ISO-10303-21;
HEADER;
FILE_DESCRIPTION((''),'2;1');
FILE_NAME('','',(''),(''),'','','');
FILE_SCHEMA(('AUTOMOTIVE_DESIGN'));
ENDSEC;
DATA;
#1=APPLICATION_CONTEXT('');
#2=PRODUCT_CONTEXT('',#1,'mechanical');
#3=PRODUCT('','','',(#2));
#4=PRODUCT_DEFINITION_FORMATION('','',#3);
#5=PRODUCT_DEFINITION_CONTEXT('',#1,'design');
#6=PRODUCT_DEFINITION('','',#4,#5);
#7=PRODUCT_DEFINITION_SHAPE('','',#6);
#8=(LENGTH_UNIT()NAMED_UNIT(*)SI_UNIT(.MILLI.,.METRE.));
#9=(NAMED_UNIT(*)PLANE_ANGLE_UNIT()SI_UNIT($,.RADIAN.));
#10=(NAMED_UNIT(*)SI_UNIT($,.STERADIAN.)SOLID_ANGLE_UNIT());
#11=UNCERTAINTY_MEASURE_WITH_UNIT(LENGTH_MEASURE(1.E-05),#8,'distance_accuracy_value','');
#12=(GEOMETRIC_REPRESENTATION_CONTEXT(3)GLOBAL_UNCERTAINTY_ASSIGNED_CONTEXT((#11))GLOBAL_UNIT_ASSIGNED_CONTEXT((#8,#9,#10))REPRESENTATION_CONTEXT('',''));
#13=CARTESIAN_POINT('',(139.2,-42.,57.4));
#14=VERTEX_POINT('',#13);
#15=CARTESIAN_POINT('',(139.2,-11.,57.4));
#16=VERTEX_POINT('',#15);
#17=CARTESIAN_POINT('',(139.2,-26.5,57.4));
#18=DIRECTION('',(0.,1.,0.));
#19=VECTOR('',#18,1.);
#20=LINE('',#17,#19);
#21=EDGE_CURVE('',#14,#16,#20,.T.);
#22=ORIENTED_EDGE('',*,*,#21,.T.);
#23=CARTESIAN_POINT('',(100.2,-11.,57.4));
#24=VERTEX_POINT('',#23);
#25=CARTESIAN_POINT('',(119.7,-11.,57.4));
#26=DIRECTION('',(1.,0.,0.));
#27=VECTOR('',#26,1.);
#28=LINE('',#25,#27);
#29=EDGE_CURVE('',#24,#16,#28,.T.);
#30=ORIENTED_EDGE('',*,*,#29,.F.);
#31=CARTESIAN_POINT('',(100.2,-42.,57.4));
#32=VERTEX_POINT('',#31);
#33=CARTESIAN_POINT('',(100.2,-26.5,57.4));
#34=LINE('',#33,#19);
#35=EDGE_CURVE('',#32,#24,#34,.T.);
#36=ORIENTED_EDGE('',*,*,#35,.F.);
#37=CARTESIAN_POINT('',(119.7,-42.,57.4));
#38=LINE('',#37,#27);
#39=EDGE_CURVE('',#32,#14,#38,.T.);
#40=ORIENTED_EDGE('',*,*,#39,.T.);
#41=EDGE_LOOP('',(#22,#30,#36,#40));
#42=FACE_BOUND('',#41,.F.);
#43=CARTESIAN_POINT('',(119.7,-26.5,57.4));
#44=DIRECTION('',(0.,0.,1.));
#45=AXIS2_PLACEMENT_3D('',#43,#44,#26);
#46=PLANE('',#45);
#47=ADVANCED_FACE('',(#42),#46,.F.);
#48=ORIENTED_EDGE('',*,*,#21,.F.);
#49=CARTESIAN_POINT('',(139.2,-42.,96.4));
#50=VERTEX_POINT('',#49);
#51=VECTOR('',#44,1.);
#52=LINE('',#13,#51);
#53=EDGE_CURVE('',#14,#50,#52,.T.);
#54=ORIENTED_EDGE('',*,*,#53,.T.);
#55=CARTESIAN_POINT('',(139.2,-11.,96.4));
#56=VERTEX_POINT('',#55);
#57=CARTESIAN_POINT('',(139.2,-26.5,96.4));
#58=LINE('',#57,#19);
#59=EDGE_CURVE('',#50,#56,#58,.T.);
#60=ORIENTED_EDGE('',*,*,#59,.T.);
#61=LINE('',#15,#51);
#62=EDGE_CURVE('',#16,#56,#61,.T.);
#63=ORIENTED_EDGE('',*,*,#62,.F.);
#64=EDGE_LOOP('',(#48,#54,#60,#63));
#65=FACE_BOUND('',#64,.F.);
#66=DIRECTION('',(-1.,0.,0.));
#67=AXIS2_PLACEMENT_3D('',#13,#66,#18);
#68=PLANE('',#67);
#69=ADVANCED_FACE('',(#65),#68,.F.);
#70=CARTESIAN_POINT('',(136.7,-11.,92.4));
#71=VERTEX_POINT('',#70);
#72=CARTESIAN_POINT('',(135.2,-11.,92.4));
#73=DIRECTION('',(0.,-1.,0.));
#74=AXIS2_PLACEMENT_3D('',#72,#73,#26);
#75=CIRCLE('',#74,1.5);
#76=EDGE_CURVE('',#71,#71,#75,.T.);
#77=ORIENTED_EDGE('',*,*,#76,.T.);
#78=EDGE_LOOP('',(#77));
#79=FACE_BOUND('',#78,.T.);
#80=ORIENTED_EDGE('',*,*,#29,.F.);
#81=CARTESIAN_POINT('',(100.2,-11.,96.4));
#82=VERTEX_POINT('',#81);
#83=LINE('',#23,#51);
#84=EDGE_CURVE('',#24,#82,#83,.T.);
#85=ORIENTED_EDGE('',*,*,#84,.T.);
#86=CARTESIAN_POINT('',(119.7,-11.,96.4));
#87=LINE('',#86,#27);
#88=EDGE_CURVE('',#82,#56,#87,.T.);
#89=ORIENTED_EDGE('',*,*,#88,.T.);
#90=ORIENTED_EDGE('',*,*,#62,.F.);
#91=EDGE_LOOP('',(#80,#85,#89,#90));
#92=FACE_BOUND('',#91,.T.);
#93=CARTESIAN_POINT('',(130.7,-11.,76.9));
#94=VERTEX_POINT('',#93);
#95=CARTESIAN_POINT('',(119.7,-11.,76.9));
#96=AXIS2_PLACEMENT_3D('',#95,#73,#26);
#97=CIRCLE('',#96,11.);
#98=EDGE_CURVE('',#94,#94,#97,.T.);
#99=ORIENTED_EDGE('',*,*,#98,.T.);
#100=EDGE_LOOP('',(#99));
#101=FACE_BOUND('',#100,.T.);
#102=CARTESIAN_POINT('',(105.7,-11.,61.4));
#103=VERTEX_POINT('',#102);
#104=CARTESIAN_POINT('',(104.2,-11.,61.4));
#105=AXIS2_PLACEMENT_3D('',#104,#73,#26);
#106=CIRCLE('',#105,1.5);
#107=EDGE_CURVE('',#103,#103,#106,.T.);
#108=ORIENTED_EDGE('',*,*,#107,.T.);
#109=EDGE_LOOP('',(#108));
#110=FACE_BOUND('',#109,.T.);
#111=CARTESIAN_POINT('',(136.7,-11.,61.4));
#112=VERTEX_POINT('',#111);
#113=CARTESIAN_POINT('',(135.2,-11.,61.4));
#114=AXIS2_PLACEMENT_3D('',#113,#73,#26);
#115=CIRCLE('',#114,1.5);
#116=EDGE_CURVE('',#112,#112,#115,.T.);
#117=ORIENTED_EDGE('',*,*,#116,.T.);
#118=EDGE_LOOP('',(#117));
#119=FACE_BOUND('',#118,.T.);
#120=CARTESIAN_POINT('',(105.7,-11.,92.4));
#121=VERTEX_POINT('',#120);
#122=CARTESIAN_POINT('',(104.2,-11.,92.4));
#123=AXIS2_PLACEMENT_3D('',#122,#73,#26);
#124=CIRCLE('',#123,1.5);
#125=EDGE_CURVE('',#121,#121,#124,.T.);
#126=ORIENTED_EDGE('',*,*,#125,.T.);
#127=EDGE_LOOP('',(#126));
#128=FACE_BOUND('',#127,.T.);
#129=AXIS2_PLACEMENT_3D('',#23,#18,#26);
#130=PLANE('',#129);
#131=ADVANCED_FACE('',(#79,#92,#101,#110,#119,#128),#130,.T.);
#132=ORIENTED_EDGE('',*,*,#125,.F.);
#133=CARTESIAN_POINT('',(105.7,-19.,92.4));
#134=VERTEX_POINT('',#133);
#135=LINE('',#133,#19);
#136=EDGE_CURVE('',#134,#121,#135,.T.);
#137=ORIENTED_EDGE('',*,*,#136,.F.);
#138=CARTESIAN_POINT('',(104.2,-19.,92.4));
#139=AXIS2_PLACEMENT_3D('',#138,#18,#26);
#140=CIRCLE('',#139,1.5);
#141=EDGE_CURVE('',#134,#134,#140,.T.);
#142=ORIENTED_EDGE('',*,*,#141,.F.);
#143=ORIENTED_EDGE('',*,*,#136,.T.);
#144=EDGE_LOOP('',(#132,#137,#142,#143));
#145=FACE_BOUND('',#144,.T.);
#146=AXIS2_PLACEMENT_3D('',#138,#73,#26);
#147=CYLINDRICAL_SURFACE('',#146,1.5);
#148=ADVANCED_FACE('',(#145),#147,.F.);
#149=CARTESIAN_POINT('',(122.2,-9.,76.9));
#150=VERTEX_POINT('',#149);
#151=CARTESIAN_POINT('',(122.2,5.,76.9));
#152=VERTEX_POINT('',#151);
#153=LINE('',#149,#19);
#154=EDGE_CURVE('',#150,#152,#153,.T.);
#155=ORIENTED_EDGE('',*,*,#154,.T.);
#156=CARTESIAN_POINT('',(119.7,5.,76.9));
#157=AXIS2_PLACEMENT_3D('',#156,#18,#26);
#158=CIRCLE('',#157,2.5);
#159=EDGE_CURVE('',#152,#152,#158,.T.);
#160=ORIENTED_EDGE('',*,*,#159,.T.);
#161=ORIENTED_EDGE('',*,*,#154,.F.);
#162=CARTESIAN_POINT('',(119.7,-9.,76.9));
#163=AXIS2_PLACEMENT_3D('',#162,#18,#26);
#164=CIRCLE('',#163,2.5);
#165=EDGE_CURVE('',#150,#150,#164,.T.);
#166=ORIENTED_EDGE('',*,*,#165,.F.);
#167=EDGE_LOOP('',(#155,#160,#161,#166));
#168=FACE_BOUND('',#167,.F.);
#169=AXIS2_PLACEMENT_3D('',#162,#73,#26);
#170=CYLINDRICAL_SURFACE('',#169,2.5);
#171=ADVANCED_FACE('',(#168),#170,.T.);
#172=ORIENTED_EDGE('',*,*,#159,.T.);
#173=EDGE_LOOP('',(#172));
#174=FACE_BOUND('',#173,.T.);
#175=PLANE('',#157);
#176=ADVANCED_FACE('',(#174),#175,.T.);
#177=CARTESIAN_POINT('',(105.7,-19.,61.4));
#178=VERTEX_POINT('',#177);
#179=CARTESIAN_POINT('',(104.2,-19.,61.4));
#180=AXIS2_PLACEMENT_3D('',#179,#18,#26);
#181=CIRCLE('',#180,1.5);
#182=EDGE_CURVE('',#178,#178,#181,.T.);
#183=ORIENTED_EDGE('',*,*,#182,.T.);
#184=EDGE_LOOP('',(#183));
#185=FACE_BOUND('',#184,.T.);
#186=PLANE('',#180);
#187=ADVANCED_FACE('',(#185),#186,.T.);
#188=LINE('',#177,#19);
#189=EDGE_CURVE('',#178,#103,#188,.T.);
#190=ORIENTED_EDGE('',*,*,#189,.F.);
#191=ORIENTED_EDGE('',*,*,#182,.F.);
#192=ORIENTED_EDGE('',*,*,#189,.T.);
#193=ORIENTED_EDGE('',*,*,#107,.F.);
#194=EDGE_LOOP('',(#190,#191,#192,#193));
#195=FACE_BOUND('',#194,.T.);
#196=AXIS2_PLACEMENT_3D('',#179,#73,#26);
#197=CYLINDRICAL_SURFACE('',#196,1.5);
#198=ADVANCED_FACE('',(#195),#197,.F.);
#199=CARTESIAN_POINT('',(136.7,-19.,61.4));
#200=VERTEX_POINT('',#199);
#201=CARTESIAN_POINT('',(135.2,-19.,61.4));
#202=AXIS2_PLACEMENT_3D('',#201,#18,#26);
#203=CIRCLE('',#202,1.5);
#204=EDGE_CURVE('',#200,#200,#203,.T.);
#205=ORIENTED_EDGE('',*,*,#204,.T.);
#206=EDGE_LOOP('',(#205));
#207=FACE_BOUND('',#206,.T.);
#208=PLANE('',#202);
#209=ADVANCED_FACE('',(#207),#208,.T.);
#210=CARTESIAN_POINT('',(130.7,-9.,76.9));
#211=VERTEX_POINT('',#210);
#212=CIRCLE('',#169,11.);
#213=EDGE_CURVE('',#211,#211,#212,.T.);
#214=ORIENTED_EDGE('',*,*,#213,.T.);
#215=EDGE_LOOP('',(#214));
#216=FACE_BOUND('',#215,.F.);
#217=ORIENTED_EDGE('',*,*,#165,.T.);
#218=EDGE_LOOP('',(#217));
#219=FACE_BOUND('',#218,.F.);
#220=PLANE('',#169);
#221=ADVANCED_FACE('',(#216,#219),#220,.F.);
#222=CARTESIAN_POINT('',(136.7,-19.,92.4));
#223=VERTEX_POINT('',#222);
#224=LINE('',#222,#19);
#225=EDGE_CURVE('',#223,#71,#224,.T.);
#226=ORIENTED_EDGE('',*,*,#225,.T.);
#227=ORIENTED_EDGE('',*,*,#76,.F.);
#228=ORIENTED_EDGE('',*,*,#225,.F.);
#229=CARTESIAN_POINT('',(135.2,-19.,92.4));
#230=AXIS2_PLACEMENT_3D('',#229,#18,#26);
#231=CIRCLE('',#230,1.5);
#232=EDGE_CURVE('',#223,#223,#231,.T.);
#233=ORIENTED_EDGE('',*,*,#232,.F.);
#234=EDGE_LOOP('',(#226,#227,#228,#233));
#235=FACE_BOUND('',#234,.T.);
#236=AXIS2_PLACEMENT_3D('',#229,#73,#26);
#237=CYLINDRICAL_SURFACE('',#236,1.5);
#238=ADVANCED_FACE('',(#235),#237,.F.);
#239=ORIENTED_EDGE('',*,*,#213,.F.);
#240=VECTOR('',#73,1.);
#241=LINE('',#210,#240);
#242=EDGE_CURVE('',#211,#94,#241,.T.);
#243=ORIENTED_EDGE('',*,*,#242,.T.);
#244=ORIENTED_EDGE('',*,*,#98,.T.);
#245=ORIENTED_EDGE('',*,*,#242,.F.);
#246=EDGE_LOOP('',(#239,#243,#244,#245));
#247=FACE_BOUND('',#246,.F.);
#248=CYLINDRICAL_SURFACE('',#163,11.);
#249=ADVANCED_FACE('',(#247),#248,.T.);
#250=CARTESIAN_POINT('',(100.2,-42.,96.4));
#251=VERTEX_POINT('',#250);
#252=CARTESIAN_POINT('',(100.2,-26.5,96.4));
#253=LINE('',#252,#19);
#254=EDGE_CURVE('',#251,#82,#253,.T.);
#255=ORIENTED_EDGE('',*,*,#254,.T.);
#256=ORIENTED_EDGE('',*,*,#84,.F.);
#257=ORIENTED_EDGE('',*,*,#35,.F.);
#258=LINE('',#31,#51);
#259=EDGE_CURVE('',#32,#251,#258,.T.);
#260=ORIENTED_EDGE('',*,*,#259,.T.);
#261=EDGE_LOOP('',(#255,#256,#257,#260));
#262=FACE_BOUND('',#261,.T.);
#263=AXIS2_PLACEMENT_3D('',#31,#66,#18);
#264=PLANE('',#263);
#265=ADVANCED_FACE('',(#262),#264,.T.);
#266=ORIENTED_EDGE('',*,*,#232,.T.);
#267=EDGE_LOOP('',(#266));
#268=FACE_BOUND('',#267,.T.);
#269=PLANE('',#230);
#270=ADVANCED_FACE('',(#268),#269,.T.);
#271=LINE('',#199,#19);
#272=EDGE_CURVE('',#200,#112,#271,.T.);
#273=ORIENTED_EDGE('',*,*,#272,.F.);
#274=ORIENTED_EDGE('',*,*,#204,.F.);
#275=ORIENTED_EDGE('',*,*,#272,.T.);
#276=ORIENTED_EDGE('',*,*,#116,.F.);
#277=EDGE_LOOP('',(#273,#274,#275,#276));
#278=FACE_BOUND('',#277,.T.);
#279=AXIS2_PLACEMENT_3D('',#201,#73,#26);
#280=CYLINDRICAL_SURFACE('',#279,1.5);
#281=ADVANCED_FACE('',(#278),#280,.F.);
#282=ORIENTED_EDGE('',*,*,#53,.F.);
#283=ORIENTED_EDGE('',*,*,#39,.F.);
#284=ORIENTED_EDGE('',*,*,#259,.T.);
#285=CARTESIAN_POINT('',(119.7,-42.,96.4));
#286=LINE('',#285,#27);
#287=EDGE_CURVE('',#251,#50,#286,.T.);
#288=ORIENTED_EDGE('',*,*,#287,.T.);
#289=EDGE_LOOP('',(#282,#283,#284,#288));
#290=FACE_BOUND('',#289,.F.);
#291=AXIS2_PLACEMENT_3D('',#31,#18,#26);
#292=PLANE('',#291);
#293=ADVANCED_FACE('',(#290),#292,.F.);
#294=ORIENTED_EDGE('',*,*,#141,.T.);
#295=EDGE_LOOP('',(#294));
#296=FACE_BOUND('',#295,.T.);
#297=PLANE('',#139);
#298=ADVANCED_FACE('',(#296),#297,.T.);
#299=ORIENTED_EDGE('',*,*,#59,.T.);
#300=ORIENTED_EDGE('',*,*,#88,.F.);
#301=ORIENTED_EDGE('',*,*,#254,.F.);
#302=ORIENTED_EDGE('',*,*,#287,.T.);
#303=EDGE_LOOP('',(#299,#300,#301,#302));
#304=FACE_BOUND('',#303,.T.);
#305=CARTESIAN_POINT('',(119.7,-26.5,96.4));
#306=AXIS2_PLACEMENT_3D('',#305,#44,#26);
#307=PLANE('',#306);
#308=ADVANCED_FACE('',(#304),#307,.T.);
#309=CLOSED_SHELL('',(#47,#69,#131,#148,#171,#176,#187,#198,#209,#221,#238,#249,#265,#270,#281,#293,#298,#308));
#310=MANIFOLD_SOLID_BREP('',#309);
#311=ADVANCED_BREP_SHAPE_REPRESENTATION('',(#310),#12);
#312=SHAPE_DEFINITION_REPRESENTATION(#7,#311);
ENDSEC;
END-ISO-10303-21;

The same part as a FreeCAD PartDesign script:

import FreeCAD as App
import Part
import Sketcher

V = App.Vector


def add_polygon(sketch, points):
    """Adds a closed chain of lines whose ends are joined by coincident constraints."""
    first, n = sketch.GeometryCount, len(points)
    for a, b in zip(points, points[1:] + points[:1]):
        sketch.addGeometry(Part.LineSegment(App.Vector(*a, 0), App.Vector(*b, 0)), False)
    for i in range(n):
        sketch.addConstraint(Sketcher.Constraint("Coincident", first + i, 2, first + (i + 1) % n, 1))

doc = App.newDocument("Part")
body = doc.addObject("PartDesign::Body", "Body")

# Sketch on XZ plane
sketch1 = doc.addObject("Sketcher::SketchObject", "Sketch")
body.addObject(sketch1)
sketch1.AttachmentSupport = (doc.XZ_Plane, [""])
sketch1.MapMode = "FlatFace"
sketch1.AttachmentOffset = App.Placement(V(0, 0, -33), App.Rotation())
sketch1.addGeometry(Part.Circle(V(20, 20, 0), V(0, 0, 1), 11), False)
sketch1.addConstraint(Sketcher.Constraint("Diameter", 0, 22.0))
sketch1.addConstraint(Sketcher.Constraint("DistanceX", -1, 1, 0, 3, 19.5))
sketch1.addConstraint(Sketcher.Constraint("DistanceY", -1, 1, 0, 3, 19.5))
pad1 = doc.addObject("PartDesign::Pad", "Pad")
body.addObject(pad1)
pad1.Profile = sketch1
pad1.Length = 2
body2 = doc.addObject("PartDesign::Body", "Body001")

# Sketch on XZ plane
sketch2 = doc.addObject("Sketcher::SketchObject", "Sketch001")
body2.addObject(sketch2)
sketch2.AttachmentSupport = (doc.getObject("XZ_Plane001"), [""])
sketch2.MapMode = "FlatFace"
sketch2.AttachmentOffset = App.Placement(V(0, 0, -33), App.Rotation())
sketch2.addGeometry(Part.Circle(V(19.5, 19.5, 0), V(0, 0, 1), 2.5), False)
sketch2.addConstraint(Sketcher.Constraint("Diameter", 0, 5.0))
sketch2.addConstraint(Sketcher.Constraint("DistanceX", -1, 1, 0, 3, 19.5))
sketch2.addConstraint(Sketcher.Constraint("DistanceY", -1, 1, 0, 3, 19.5))
pad2 = doc.addObject("PartDesign::Pad", "Pad001")
body2.addObject(pad2)
pad2.Profile = sketch2
pad2.Length = 14
pad2.Reversed = True
body3 = doc.addObject("PartDesign::Body", "Body002")

# Sketch on XZ plane
sketch3 = doc.addObject("Sketcher::SketchObject", "Sketch002")
body3.addObject(sketch3)
sketch3.AttachmentSupport = (doc.getObject("XZ_Plane002"), [""])
sketch3.MapMode = "FlatFace"
sketch3.AttachmentOffset = App.Placement(V(0, 0, -23), App.Rotation())
sketch3.addGeometry(Part.Circle(V(35, 35, 0), V(0, 0, 1), 1.5), False)
sketch3.addConstraint(Sketcher.Constraint("Diameter", 0, 3.0))
sketch3.addConstraint(Sketcher.Constraint("DistanceX", -1, 1, 0, 3, 35.0))
sketch3.addConstraint(Sketcher.Constraint("DistanceY", -1, 1, 0, 3, 35.0))
pad3 = doc.addObject("PartDesign::Pad", "Pad002")
body3.addObject(pad3)
pad3.Profile = sketch3
pad3.Length = 10
pad3.Reversed = True
body4 = doc.addObject("PartDesign::Body", "Body003")

# Sketch on XZ plane
sketch4 = doc.addObject("Sketcher::SketchObject", "Sketch003")
body4.addObject(sketch4)
sketch4.AttachmentSupport = (doc.getObject("XZ_Plane003"), [""])
sketch4.MapMode = "FlatFace"
sketch4.AttachmentOffset = App.Placement(V(0, 0, -23), App.Rotation())
sketch4.addGeometry(Part.Circle(V(35, 4, 0), V(0, 0, 1), 1.5), False)
sketch4.addConstraint(Sketcher.Constraint("Diameter", 0, 3.0))
sketch4.addConstraint(Sketcher.Constraint("DistanceX", -1, 1, 0, 3, 35.0))
sketch4.addConstraint(Sketcher.Constraint("DistanceY", -1, 1, 0, 3, 4.0))
pad4 = doc.addObject("PartDesign::Pad", "Pad003")
body4.addObject(pad4)
pad4.Profile = sketch4
pad4.Length = 10
pad4.Reversed = True
body5 = doc.addObject("PartDesign::Body", "Body004")

# Sketch on XZ plane
sketch5 = doc.addObject("Sketcher::SketchObject", "Sketch004")
body5.addObject(sketch5)
sketch5.AttachmentSupport = (doc.getObject("XZ_Plane004"), [""])
sketch5.MapMode = "FlatFace"
sketch5.AttachmentOffset = App.Placement(V(0, 0, -23), App.Rotation())
sketch5.addGeometry(Part.Circle(V(4, 4, 0), V(0, 0, 1), 1.5), False)
sketch5.addConstraint(Sketcher.Constraint("Diameter", 0, 3.0))
sketch5.addConstraint(Sketcher.Constraint("DistanceX", -1, 1, 0, 3, 4.0))
sketch5.addConstraint(Sketcher.Constraint("DistanceY", -1, 1, 0, 3, 4.0))
pad5 = doc.addObject("PartDesign::Pad", "Pad004")
body5.addObject(pad5)
pad5.Profile = sketch5
pad5.Length = 10
pad5.Reversed = True
body6 = doc.addObject("PartDesign::Body", "Body005")

# Sketch on XZ plane
sketch6 = doc.addObject("Sketcher::SketchObject", "Sketch005")
body6.addObject(sketch6)
sketch6.AttachmentSupport = (doc.getObject("XZ_Plane005"), [""])
sketch6.MapMode = "FlatFace"
sketch6.AttachmentOffset = App.Placement(V(0, 0, -23), App.Rotation())
sketch6.addGeometry(Part.Circle(V(4, 35, 0), V(0, 0, 1), 1.5), False)
sketch6.addConstraint(Sketcher.Constraint("Diameter", 0, 3.0))
sketch6.addConstraint(Sketcher.Constraint("DistanceX", -1, 1, 0, 3, 4.0))
sketch6.addConstraint(Sketcher.Constraint("DistanceY", -1, 1, 0, 3, 35.0))
pad6 = doc.addObject("PartDesign::Pad", "Pad005")
body6.addObject(pad6)
pad6.Profile = sketch6
pad6.Length = 10
pad6.Reversed = True
body7 = doc.addObject("PartDesign::Body", "Body006")

# Sketch on XY plane
sketch7 = doc.addObject("Sketcher::SketchObject", "Sketch006")
body7.addObject(sketch7)
sketch7.AttachmentSupport = (doc.getObject("XY_Plane006"), [""])
sketch7.MapMode = "FlatFace"
add_polygon(sketch7, [(0, 31), (0, 0), (39, 0), (39, 31)])  # lines 0-3
sketch7.addConstraint(Sketcher.Constraint("Vertical", 0))
sketch7.addConstraint(Sketcher.Constraint("Horizontal", 1))
sketch7.addConstraint(Sketcher.Constraint("Vertical", 2))
sketch7.addConstraint(Sketcher.Constraint("Horizontal", 3))
sketch7.addConstraint(Sketcher.Constraint("Coincident", 0, 2, -1, 1))
sketch7.addConstraint(Sketcher.Constraint("DistanceX", 1, 1, 1, 2, 39.0))
sketch7.addConstraint(Sketcher.Constraint("DistanceY", 0, 2, 0, 1, 31.0))
pad7 = doc.addObject("PartDesign::Pad", "Pad006")
body7.addObject(pad7)
pad7.Profile = sketch7
pad7.Length = 39
doc.recompute()

boolean = doc.addObject("PartDesign::Boolean", "Boolean")
body7.addObject(boolean)
boolean.Type = "Cut"
boolean.addObjects([body6])
doc.recompute()

boolean2 = doc.addObject("PartDesign::Boolean", "Boolean001")
body7.addObject(boolean2)
boolean2.Type = "Cut"
boolean2.addObjects([body5])
doc.recompute()

boolean3 = doc.addObject("PartDesign::Boolean", "Boolean002")
body7.addObject(boolean3)
boolean3.Type = "Cut"
boolean3.addObjects([body4])
doc.recompute()

boolean4 = doc.addObject("PartDesign::Boolean", "Boolean003")
body7.addObject(boolean4)
boolean4.Type = "Cut"
boolean4.addObjects([body3])
doc.recompute()

boolean5 = doc.addObject("PartDesign::Boolean", "Boolean004")
body7.addObject(boolean5)
boolean5.Type = "Fuse"
boolean5.addObjects([body])
doc.recompute()

boolean6 = doc.addObject("PartDesign::Boolean", "Boolean005")
body7.addObject(boolean6)
boolean6.Type = "Fuse"
boolean6.addObjects([body2])
body8 = doc.addObject("PartDesign::Body", "Body007")
doc.recompute()

body7.Placement = App.Placement(V(100.2, -42, 57.4), App.Rotation(V(0, 0, 1), 0))
boolean7 = doc.addObject("PartDesign::Boolean", "Boolean006")
body8.addObject(boolean7)
boolean7.Type = "Fuse"
boolean7.addObjects([body7])

doc.recompute()
